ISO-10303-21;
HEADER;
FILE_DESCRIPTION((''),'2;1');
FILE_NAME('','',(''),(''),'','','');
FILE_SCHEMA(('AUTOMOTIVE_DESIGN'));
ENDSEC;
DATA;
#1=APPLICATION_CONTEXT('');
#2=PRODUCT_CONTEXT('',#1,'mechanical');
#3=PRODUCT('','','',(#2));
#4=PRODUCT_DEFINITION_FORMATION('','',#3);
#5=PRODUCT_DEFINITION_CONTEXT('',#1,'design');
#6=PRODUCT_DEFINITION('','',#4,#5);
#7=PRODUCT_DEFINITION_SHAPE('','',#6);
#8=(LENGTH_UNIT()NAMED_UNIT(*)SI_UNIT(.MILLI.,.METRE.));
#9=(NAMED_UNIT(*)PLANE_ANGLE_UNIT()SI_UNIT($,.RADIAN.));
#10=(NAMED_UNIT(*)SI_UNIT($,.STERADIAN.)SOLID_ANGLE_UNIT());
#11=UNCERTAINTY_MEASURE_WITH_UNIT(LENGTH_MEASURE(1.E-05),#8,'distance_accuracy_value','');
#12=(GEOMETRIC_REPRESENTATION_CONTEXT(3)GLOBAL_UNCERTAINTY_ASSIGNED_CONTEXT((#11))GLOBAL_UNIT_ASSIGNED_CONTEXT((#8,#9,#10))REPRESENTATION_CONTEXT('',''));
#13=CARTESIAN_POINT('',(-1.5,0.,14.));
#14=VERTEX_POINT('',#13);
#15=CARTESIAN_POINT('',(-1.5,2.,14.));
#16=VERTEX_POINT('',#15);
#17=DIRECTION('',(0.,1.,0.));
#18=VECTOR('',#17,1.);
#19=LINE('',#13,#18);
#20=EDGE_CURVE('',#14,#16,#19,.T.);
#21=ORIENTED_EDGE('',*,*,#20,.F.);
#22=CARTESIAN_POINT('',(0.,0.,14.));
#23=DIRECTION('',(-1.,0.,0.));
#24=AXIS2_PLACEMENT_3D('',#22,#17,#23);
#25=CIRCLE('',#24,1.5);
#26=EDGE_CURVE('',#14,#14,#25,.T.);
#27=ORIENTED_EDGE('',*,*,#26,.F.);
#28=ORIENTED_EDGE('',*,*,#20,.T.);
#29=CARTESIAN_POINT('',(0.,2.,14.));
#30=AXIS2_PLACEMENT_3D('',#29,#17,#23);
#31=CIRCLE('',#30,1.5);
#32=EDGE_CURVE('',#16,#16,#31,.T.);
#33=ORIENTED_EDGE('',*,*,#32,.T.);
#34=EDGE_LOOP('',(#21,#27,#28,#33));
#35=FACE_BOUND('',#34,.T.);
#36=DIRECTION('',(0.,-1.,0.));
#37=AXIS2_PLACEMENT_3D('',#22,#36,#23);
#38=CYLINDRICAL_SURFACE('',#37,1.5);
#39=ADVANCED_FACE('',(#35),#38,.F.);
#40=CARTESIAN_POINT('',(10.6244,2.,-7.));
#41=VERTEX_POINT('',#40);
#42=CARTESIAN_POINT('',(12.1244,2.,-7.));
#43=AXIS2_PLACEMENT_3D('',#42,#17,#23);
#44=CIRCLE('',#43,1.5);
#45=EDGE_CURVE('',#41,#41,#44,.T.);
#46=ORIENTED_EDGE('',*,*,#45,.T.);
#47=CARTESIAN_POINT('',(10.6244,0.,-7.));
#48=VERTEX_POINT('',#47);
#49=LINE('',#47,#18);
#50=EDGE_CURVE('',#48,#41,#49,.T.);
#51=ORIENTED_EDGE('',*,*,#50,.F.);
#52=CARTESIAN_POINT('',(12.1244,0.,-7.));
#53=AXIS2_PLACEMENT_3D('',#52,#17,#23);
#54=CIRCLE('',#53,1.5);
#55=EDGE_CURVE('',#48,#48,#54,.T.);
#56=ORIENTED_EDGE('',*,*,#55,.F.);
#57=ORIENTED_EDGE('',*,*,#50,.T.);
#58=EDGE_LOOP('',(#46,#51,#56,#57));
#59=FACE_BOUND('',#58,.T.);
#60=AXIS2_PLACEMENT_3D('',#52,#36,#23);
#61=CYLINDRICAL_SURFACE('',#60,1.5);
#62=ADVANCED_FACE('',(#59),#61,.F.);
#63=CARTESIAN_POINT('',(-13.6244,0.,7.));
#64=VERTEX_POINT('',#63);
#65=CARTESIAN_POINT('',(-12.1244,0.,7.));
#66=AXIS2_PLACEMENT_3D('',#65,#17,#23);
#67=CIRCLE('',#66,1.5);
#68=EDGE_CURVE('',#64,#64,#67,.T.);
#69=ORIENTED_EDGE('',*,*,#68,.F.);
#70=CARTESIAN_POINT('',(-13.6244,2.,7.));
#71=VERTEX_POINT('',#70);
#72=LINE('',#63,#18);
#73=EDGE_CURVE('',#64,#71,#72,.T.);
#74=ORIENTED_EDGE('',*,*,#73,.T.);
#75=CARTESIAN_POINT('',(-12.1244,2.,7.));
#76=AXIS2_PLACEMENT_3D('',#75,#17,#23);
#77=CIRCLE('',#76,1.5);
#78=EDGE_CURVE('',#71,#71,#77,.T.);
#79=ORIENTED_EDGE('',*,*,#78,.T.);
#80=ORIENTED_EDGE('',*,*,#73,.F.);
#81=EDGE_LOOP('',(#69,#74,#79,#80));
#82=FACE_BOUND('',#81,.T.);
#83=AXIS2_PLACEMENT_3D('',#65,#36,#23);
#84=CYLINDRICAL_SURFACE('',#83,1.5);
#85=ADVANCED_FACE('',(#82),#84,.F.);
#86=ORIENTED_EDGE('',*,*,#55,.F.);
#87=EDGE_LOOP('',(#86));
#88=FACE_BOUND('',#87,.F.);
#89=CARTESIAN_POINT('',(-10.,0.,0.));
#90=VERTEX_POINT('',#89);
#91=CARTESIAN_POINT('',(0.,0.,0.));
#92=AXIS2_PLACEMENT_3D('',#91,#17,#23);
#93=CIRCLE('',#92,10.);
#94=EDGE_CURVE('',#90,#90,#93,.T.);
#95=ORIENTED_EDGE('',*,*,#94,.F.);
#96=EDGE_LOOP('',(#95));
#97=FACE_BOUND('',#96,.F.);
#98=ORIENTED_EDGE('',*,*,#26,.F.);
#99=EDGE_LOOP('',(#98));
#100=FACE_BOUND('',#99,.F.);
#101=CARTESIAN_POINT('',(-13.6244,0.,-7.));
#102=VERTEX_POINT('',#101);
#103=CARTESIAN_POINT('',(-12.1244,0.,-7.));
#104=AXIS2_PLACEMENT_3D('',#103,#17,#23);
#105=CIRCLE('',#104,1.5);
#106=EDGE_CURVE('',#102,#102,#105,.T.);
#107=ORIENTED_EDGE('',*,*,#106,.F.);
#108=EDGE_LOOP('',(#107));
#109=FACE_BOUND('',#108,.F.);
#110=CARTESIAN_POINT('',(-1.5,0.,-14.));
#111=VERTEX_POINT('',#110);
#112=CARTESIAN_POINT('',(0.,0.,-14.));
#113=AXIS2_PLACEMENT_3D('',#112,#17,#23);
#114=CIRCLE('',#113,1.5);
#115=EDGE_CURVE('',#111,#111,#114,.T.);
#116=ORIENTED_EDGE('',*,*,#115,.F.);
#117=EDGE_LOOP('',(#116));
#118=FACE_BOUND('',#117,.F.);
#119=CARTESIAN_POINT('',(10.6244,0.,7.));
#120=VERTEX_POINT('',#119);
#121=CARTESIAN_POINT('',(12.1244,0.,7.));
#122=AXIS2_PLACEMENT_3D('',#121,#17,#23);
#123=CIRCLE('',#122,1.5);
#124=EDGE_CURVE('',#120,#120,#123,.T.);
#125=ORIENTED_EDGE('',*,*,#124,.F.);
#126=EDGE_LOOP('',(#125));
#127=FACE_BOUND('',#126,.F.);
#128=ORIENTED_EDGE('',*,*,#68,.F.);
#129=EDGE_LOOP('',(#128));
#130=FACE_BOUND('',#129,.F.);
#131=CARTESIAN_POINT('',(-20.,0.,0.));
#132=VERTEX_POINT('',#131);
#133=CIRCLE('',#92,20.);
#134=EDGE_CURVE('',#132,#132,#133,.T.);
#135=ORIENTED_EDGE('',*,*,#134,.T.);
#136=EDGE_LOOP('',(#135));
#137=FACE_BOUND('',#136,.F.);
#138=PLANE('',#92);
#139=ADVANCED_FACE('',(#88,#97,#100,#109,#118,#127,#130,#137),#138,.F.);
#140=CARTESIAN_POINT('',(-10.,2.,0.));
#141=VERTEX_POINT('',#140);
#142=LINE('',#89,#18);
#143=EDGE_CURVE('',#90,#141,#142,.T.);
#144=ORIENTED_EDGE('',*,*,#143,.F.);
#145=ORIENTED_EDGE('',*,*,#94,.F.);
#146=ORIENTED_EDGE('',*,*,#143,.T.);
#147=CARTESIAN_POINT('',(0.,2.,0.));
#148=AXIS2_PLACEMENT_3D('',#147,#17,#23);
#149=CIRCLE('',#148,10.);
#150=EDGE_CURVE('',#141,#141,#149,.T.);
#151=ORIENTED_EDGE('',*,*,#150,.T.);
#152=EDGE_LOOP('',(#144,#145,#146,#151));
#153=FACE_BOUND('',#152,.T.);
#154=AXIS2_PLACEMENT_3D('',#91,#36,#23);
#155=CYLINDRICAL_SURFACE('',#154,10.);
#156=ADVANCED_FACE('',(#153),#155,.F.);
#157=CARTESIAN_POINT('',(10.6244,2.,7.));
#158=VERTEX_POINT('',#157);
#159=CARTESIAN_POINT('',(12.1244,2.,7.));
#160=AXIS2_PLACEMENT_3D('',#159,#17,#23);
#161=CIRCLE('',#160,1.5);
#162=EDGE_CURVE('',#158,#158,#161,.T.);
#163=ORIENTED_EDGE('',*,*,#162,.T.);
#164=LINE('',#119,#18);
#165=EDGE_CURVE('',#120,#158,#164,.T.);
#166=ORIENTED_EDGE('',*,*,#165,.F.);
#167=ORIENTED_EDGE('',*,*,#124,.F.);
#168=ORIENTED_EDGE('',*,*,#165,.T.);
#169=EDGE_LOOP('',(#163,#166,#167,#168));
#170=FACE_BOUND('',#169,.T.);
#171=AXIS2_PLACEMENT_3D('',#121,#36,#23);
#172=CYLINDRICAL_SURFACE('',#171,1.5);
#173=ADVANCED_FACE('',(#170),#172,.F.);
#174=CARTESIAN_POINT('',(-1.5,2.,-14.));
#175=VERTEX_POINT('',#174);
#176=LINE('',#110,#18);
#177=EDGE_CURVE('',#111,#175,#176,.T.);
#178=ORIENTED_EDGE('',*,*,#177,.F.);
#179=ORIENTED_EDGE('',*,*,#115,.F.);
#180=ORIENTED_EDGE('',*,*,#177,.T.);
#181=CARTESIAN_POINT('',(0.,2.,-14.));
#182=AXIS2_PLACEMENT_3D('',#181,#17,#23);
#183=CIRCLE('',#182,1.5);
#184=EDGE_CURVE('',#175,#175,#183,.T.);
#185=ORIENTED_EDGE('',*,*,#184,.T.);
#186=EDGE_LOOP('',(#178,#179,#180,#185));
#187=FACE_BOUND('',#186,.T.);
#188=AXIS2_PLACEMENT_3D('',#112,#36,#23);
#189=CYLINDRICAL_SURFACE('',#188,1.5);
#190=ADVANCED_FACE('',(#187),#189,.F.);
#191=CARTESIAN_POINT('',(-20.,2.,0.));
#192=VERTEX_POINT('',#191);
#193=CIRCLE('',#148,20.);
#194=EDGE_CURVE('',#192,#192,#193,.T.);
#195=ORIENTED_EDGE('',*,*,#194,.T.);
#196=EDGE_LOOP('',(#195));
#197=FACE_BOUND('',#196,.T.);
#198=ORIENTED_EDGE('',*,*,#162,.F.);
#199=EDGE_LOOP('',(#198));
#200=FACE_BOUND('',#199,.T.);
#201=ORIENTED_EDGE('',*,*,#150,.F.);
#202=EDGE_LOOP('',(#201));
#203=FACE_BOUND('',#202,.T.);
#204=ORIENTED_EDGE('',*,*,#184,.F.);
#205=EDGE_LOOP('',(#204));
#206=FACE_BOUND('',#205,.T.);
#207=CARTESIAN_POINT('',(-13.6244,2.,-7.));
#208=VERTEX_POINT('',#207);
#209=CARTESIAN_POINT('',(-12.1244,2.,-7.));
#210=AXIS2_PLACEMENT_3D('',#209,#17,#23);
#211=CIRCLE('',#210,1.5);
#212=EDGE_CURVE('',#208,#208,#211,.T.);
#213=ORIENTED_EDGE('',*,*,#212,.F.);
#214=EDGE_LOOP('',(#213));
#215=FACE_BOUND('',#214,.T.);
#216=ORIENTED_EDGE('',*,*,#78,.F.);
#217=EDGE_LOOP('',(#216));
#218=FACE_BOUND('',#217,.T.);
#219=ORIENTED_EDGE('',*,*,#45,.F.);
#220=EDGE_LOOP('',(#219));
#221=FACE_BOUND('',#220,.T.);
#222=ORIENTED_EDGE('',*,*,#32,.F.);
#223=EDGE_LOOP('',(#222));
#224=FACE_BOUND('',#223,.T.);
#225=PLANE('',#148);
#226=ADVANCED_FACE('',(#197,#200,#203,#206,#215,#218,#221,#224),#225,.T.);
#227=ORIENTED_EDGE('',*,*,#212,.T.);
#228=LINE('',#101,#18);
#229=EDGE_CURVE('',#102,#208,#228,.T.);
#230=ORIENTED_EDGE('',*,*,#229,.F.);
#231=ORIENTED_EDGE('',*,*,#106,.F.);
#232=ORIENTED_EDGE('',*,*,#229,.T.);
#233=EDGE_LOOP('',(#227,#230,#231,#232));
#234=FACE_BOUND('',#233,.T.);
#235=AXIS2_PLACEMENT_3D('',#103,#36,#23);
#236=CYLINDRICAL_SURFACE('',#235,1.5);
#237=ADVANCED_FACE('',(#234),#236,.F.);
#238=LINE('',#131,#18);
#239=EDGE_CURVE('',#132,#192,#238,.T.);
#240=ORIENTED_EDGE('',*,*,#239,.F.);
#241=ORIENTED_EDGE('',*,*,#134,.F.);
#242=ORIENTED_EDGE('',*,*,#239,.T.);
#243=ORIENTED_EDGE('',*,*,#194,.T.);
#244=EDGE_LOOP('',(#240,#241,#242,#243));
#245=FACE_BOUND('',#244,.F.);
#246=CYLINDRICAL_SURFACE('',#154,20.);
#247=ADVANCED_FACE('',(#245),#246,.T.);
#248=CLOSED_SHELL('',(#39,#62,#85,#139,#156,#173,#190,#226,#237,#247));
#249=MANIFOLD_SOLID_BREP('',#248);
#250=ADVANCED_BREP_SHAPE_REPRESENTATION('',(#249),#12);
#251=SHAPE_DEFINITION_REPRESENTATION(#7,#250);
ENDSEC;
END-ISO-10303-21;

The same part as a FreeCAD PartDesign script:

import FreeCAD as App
import Part
import Sketcher

V = App.Vector
Q = App.Units.Quantity

doc = App.newDocument("Part")
params = doc.addObject("Spreadsheet::Sheet", "Params")
for row, (alias, value) in enumerate([
    ("sketch1_diameter", "40 mm"),
    ("sketch1_diameter2", "3 mm"),
    ("sketch1_diameter3", "20 mm"),
    ("pad1_length", "2 mm"),
], start=1):
    params.set(f"A{row}", alias)
    params.set(f"B{row}", "=" + value)
    params.setAlias(f"B{row}", alias)

body = doc.addObject("PartDesign::Body", "Body")

sketch1 = doc.addObject("Sketcher::SketchObject", "Sketch")
body.addObject(sketch1)
sketch1.AttachmentSupport = (doc.XZ_Plane, [""])
sketch1.MapMode = "FlatFace"
sketch1.addGeometry([
    Part.Circle(V(0, 0, 0), V(0, 0, 1), 20),
    Part.Circle(V(12.1, -7, 0), V(0, 0, 1), 1.5),
    Part.Circle(V(0, -14, 0), V(0, 0, 1), 1.5),
    Part.Circle(V(-12.1, -7, 0), V(0, 0, 1), 1.5),
    Part.Circle(V(12.1, 7, 0), V(0, 0, 1), 1.5),
    Part.Circle(V(0, 0, 0), V(0, 0, 1), 10),
    Part.Circle(V(-12.1, 7, 0), V(0, 0, 1), 1.5),
    Part.Circle(V(0, 14, 0), V(0, 0, 1), 1.5),
], False)
sketch1.addConstraint([
    Sketcher.Constraint("Coincident", 0, 3, -1, 1),
    Sketcher.Constraint("Coincident", 5, 3, -1, 1),
    Sketcher.Constraint("Equal", 1, 2),
    Sketcher.Constraint("Equal", 2, 3),
    Sketcher.Constraint("Equal", 3, 4),
    Sketcher.Constraint("Equal", 4, 6),
    Sketcher.Constraint("Equal", 6, 7),
    Sketcher.Constraint("Symmetric", 3, 3, 4, 3, -1, 1),
    Sketcher.Constraint("Symmetric", 1, 3, 6, 3, -1, 1),
    Sketcher.Constraint("Symmetric", 2, 3, 7, 3, -1, 1),
    Sketcher.Constraint("Symmetric", 1, 3, 3, 3, -2),
    Sketcher.Constraint("PointOnObject", 2, 3, -2),
    Sketcher.Constraint("Diameter", 0, Q("40 mm")),
    Sketcher.Constraint("Diameter", 1, Q("3 mm")),
    Sketcher.Constraint("Diameter", 5, Q("20 mm")),
    Sketcher.Constraint("DistanceY", 2, 3, -1, 1, Q("14 mm")),
    Sketcher.Constraint("DistanceY", 1, 3, 4, 3, Q("14 mm")),
    Sketcher.Constraint("DistanceX", -1, 1, 1, 3, Q("12.1244 mm")),
])
sketch1.setExpression("Constraints[12]", "Params.sketch1_diameter")
sketch1.setExpression("Constraints[13]", "Params.sketch1_diameter2")
sketch1.setExpression("Constraints[14]", "Params.sketch1_diameter3")
pad1 = doc.addObject("PartDesign::Pad", "Pad")
body.addObject(pad1)
pad1.Profile = sketch1
pad1.setExpression("Length", "Params.pad1_length")
pad1.Reversed = True

doc.recompute()
